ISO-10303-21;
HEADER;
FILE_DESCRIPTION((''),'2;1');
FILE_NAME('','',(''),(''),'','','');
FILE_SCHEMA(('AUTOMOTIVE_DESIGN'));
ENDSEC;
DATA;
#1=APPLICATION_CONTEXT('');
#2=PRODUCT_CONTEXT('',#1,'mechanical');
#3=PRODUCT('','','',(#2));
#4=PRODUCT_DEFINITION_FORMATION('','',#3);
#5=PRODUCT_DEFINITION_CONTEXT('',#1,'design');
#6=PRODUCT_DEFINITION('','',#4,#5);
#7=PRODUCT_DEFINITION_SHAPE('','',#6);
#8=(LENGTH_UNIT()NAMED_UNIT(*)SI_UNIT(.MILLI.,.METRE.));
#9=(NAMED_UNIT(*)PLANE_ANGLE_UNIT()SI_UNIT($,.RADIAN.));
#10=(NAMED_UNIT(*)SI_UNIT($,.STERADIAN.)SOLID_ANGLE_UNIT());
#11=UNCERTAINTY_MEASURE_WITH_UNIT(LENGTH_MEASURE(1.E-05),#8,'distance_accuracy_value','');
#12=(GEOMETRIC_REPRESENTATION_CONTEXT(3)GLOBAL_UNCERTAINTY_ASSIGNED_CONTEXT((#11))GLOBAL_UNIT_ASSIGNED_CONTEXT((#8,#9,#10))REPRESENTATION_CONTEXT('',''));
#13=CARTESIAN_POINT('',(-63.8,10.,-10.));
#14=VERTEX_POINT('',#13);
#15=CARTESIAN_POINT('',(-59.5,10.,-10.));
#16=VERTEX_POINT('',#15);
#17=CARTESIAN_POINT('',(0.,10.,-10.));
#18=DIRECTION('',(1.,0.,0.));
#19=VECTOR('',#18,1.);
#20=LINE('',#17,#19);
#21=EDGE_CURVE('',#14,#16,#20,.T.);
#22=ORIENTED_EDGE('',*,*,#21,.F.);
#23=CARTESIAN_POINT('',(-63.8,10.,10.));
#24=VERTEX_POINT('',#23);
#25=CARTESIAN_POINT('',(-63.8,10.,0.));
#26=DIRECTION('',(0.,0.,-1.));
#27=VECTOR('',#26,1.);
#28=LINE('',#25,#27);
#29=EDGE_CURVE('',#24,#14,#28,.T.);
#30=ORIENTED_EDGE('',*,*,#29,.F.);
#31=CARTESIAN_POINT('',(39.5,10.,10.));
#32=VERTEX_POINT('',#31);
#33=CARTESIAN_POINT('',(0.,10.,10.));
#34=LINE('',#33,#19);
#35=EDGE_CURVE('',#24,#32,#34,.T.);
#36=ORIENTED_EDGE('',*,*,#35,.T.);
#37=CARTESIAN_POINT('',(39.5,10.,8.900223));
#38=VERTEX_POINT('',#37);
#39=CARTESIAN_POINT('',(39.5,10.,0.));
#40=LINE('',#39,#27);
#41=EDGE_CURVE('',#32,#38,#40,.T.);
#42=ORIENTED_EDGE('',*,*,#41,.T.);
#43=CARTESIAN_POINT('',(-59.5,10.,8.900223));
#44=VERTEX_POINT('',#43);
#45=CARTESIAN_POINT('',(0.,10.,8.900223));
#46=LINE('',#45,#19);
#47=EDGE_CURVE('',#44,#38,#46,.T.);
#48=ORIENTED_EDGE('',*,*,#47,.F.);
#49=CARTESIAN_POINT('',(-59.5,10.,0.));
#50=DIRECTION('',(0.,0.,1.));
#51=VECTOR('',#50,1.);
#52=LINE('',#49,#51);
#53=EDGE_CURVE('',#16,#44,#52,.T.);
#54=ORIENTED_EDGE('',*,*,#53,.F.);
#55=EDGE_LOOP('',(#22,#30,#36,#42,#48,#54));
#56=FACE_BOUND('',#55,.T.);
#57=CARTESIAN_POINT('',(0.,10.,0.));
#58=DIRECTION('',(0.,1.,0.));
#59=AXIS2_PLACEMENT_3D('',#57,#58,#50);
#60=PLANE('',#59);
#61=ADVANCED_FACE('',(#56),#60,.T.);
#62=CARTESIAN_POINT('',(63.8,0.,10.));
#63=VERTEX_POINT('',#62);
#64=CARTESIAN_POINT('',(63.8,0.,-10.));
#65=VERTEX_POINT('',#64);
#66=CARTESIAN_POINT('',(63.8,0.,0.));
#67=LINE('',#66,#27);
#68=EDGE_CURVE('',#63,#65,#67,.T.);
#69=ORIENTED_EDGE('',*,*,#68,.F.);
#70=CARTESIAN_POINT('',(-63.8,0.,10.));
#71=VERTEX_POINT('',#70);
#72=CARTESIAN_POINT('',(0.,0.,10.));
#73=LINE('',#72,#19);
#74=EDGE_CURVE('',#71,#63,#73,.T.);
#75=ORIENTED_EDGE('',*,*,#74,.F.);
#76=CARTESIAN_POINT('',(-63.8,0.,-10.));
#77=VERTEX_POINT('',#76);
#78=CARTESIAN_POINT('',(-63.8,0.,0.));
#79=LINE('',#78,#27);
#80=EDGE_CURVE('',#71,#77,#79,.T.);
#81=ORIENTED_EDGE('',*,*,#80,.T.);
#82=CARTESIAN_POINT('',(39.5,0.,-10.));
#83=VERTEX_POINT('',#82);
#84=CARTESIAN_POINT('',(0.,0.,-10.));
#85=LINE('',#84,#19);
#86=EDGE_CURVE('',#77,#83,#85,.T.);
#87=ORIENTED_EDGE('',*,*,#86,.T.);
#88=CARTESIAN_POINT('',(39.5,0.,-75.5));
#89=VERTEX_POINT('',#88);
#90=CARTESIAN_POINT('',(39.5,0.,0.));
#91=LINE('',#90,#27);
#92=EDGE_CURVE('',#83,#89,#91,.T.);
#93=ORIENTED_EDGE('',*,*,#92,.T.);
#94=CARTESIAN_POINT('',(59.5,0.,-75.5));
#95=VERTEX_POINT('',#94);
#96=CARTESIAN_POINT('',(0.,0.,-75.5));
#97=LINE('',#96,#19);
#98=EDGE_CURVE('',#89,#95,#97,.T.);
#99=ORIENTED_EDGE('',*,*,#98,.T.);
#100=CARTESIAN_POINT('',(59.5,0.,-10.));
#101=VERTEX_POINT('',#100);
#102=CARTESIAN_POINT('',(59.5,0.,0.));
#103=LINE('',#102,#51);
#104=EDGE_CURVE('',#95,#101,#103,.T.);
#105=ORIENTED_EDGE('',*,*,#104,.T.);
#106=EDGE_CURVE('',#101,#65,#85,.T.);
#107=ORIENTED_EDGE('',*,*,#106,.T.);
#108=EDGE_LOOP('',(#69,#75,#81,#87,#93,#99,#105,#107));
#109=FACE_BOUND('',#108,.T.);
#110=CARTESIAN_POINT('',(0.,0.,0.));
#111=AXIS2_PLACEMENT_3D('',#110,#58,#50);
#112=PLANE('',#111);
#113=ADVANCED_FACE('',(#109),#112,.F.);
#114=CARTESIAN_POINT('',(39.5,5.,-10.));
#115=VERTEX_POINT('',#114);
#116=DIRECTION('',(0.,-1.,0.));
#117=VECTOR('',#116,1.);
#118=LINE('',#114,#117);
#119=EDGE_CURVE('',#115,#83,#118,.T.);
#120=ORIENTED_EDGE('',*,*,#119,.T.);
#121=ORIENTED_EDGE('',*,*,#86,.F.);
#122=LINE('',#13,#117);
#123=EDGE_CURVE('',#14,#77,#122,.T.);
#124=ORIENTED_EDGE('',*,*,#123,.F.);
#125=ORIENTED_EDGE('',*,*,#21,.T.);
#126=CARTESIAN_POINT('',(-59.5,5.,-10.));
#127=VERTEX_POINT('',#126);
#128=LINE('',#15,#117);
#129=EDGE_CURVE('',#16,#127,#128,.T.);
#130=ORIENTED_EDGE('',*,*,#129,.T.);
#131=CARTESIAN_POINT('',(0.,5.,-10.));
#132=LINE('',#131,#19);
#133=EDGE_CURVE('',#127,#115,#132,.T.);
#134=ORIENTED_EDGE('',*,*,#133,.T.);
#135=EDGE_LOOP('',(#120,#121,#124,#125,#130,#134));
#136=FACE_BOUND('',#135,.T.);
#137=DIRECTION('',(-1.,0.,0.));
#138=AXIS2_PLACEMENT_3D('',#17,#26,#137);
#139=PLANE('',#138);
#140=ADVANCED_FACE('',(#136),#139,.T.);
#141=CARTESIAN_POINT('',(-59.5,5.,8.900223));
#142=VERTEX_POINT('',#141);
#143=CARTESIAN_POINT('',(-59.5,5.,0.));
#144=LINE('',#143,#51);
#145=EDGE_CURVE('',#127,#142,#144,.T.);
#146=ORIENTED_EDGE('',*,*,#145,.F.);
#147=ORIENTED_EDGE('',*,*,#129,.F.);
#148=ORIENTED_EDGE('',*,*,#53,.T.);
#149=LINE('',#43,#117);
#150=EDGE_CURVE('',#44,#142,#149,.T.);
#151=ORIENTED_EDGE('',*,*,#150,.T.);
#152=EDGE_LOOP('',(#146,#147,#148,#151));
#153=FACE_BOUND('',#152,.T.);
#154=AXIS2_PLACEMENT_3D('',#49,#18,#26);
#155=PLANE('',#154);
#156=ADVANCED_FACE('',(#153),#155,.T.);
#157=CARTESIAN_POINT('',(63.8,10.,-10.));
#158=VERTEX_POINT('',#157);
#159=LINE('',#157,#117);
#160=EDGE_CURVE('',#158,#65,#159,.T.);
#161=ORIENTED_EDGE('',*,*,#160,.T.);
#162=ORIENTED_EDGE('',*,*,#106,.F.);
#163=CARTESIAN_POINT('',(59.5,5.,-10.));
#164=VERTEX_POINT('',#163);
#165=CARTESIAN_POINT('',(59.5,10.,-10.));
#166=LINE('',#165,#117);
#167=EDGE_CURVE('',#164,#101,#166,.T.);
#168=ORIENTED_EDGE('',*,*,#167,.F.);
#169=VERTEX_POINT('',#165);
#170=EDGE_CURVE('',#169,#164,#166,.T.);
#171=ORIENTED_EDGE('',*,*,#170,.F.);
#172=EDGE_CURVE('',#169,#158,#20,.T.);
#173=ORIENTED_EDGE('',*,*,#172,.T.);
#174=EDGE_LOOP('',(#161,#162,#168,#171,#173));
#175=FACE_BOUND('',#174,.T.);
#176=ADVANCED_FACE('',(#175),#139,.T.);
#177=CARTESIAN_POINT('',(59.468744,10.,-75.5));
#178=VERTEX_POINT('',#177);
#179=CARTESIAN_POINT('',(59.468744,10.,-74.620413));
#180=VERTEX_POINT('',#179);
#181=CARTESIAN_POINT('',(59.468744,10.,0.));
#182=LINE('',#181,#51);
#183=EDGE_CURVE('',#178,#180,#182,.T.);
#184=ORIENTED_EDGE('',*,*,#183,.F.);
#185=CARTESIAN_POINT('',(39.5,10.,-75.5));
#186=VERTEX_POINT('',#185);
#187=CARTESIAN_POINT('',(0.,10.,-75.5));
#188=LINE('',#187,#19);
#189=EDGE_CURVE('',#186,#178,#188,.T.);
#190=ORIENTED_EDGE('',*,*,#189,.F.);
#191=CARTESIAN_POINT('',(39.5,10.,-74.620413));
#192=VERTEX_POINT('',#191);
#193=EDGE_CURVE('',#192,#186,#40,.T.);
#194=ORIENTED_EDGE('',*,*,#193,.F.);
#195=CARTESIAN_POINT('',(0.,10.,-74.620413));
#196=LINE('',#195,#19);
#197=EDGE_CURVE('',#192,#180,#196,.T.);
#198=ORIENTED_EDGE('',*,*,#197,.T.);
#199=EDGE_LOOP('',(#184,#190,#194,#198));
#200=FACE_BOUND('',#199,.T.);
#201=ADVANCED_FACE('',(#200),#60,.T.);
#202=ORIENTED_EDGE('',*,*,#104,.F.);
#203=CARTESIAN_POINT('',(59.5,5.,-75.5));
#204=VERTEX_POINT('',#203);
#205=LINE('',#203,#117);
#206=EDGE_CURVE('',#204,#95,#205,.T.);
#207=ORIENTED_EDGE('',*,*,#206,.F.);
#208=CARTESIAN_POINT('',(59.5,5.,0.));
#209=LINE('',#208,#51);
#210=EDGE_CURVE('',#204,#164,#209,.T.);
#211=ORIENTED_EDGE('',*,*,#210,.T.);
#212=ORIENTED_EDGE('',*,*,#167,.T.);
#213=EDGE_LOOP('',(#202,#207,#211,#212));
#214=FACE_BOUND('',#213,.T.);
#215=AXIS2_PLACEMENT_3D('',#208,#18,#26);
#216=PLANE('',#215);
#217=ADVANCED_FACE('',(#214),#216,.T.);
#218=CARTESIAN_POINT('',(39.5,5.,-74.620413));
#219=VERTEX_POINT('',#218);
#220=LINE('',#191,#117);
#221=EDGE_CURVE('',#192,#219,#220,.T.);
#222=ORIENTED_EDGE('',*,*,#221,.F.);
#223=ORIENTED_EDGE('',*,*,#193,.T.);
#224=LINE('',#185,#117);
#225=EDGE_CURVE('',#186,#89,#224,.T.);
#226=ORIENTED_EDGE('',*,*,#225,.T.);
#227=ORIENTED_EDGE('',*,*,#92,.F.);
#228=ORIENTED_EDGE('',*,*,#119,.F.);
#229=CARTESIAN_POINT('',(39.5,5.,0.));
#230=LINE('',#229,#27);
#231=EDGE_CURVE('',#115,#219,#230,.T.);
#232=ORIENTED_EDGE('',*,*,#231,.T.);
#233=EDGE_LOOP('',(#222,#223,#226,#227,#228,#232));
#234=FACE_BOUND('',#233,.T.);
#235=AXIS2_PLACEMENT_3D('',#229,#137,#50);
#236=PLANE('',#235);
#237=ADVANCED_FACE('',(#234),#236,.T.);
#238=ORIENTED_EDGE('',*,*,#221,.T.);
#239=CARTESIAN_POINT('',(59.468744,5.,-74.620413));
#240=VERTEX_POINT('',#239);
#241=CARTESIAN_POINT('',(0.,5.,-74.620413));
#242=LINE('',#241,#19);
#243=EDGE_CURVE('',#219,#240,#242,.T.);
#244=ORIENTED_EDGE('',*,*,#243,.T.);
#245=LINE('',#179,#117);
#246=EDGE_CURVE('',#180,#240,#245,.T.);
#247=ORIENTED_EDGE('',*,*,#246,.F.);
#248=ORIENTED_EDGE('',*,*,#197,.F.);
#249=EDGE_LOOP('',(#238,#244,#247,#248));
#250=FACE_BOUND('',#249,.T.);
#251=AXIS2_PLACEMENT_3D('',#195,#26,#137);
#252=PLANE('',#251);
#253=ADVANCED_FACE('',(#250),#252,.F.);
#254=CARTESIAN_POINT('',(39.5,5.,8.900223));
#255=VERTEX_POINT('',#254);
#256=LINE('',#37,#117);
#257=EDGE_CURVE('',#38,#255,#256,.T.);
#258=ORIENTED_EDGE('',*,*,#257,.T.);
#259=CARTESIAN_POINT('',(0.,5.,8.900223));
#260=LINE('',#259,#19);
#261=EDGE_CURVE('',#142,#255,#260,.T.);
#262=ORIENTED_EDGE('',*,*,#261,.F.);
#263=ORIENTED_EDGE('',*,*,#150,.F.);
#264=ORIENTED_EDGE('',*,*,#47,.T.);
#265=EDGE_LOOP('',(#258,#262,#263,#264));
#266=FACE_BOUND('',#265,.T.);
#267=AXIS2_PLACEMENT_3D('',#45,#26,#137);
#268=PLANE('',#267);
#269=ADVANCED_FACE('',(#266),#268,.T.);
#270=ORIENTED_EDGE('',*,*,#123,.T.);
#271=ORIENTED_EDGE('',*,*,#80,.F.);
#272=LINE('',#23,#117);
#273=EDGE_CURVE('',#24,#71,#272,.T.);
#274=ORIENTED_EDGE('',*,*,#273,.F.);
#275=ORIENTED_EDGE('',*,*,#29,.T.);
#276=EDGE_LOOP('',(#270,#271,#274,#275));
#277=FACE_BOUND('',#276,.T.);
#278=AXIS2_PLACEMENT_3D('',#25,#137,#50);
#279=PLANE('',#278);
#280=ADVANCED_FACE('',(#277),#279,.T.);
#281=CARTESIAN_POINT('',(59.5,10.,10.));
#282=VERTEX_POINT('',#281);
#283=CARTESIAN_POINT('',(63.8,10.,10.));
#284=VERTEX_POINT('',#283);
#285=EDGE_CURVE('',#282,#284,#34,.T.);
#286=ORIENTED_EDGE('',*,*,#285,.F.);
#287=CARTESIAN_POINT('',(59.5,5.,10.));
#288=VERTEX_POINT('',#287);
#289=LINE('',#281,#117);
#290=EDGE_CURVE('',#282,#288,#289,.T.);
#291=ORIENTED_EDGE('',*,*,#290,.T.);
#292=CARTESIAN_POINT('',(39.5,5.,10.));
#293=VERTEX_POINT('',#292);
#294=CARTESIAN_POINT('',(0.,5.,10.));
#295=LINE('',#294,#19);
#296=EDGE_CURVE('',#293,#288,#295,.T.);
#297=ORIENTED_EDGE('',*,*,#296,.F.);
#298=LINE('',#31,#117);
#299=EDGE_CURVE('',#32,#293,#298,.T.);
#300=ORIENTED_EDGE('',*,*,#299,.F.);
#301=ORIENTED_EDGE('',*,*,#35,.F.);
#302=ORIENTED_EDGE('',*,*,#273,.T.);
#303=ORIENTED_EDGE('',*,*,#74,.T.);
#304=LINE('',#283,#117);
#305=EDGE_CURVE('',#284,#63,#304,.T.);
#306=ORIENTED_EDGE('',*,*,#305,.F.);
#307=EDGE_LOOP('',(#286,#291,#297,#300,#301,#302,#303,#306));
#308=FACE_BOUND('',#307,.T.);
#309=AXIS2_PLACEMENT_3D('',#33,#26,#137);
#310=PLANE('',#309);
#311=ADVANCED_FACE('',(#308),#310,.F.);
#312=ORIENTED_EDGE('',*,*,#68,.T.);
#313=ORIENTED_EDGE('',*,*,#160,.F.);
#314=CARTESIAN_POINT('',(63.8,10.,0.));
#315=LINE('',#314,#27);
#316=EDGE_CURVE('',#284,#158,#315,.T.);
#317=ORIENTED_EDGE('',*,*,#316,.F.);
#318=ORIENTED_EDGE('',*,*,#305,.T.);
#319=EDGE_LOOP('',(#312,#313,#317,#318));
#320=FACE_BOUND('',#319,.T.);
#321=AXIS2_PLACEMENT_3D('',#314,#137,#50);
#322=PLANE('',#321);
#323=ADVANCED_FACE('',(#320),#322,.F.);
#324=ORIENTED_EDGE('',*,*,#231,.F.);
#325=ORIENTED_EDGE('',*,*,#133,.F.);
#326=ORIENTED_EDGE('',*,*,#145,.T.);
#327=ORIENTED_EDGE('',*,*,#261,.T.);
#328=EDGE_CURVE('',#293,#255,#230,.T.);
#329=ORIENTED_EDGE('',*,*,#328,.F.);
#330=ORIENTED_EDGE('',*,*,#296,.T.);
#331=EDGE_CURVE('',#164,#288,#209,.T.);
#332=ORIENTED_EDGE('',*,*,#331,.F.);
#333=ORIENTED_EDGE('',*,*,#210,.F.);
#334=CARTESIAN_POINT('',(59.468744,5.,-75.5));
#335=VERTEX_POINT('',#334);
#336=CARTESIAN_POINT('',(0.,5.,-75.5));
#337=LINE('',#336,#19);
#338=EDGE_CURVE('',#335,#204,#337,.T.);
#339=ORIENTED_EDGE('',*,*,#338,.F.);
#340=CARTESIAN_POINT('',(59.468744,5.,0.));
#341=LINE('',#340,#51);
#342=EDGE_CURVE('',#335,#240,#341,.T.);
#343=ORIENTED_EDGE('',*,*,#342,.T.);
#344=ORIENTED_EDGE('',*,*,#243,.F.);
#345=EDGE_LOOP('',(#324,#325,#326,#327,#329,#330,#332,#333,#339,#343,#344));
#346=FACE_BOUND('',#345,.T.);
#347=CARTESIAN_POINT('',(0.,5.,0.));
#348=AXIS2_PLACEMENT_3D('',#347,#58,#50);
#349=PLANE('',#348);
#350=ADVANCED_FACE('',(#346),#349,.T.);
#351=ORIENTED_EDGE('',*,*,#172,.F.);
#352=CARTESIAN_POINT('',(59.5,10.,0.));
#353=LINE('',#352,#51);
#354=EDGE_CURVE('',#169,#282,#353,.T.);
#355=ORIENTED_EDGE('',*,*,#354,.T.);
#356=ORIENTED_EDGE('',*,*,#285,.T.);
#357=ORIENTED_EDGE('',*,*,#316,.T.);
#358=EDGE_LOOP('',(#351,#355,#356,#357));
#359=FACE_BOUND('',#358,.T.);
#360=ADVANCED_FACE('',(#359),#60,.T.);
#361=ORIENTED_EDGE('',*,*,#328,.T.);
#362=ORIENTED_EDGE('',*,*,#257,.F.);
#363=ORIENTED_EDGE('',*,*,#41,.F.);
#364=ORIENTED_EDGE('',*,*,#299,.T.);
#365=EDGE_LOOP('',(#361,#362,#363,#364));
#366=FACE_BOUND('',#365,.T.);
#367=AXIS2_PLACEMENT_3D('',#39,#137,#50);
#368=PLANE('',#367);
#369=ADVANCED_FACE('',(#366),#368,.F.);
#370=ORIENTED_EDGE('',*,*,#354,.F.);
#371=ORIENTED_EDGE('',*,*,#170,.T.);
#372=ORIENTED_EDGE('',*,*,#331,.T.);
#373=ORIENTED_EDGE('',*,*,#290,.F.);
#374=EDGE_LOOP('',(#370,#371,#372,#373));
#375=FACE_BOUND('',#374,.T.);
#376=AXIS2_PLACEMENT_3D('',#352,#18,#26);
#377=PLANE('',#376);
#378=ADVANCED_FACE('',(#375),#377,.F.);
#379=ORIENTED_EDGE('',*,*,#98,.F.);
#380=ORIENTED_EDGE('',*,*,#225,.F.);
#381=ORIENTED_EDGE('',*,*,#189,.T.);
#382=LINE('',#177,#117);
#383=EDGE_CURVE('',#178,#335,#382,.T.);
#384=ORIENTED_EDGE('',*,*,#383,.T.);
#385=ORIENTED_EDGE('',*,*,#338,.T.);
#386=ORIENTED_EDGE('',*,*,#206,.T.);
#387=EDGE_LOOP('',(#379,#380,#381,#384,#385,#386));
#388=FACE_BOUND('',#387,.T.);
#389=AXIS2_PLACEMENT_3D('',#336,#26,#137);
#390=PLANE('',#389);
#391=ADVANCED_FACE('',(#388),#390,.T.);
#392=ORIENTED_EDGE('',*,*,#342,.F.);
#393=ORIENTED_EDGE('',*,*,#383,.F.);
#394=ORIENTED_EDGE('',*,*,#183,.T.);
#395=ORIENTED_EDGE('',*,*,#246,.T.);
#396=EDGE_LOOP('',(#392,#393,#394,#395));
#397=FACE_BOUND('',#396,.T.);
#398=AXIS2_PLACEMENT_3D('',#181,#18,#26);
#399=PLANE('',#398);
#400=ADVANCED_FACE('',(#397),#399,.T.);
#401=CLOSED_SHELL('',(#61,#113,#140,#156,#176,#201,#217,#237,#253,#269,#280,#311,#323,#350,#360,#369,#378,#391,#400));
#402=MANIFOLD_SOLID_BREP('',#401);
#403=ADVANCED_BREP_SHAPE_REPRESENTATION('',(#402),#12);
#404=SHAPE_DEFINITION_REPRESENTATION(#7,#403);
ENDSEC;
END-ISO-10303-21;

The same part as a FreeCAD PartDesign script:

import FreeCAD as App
import Part
import Sketcher

V = App.Vector
Q = App.Units.Quantity

doc = App.newDocument("Part")
body = doc.addObject("PartDesign::Body", "Body")
body.AllowCompound = True

sketch1 = doc.addObject("Sketcher::SketchObject", "Sketch")
body.addObject(sketch1)
sketch1.AttachmentSupport = (doc.XZ_Plane, [""])
sketch1.MapMode = "FlatFace"
sketch1.addGeometry([
    Part.LineSegment(V(-63.8, -10, 0), V(-63.8, 10, 0)),
    Part.LineSegment(V(-63.8, 10, 0), V(39.5, 10, 0)),
    Part.LineSegment(V(39.5, 10, 0), V(39.5, 8.9, 0)),
    Part.LineSegment(V(39.5, 8.9, 0), V(-59.5, 8.9, 0)),
    Part.LineSegment(V(-59.5, 8.9, 0), V(-59.5, -10, 0)),
    Part.LineSegment(V(-59.5, -10, 0), V(-63.8, -10, 0)),
    Part.LineSegment(V(59.5, -10, 0), V(59.5, 10, 0)),
    Part.LineSegment(V(59.5, 10, 0), V(63.8, 10, 0)),
    Part.LineSegment(V(63.8, 10, 0), V(63.8, -10, 0)),
    Part.LineSegment(V(63.8, -10, 0), V(59.5, -10, 0)),
    Part.LineSegment(V(39.5, -75.5, 0), V(39.5, -74.6, 0)),
    Part.LineSegment(V(39.5, -74.6, 0), V(59.5, -74.6, 0)),
    Part.LineSegment(V(59.5, -74.6, 0), V(59.5, -75.5, 0)),
    Part.LineSegment(V(59.5, -75.5, 0), V(39.5, -75.5, 0)),
], False)
sketch1.addConstraint([
    Sketcher.Constraint("Coincident", 0, 2, 1, 1),
    Sketcher.Constraint("Coincident", 1, 2, 2, 1),
    Sketcher.Constraint("Coincident", 2, 2, 3, 1),
    Sketcher.Constraint("Coincident", 3, 2, 4, 1),
    Sketcher.Constraint("Coincident", 4, 2, 5, 1),
    Sketcher.Constraint("Coincident", 5, 2, 0, 1),
    Sketcher.Constraint("Coincident", 6, 2, 7, 1),
    Sketcher.Constraint("Coincident", 7, 2, 8, 1),
    Sketcher.Constraint("Coincident", 8, 2, 9, 1),
    Sketcher.Constraint("Coincident", 9, 2, 6, 1),
    Sketcher.Constraint("Coincident", 10, 2, 11, 1),
    Sketcher.Constraint("Coincident", 11, 2, 12, 1),
    Sketcher.Constraint("Coincident", 12, 2, 13, 1),
    Sketcher.Constraint("Coincident", 13, 2, 10, 1),
    Sketcher.Constraint("Vertical", 0),
    Sketcher.Constraint("Horizontal", 1),
    Sketcher.Constraint("Vertical", 2),
    Sketcher.Constraint("Horizontal", 3),
    Sketcher.Constraint("Vertical", 4),
    Sketcher.Constraint("Horizontal", 5),
    Sketcher.Constraint("Vertical", 6),
    Sketcher.Constraint("Horizontal", 7),
    Sketcher.Constraint("Vertical", 8),
    Sketcher.Constraint("Horizontal", 9),
    Sketcher.Constraint("Vertical", 10),
    Sketcher.Constraint("Horizontal", 11),
    Sketcher.Constraint("Vertical", 12),
    Sketcher.Constraint("Horizontal", 13),
    Sketcher.Constraint("Symmetric", 4, 2, 6, 2, -1, 1),
    Sketcher.Constraint("Symmetric", 0, 2, 8, 2, -1, 1),
    Sketcher.Constraint("Horizontal", 1, 2, 6, 2),
    Sketcher.Constraint("Vertical", 2, 2, 10, 2),
    Sketcher.Constraint("DistanceX", 3, 2, 3, 1, Q("99 mm")),
    Sketcher.Constraint("DistanceY", 0, 1, 0, 2, Q("20 mm")),
    Sketcher.Constraint("DistanceX", 1, 1, 1, 2, Q("103.3 mm")),
    Sketcher.Constraint("DistanceX", 1, 2, 6, 2, Q("20 mm")),
    Sketcher.Constraint("DistanceY", 12, 2, -1, 1, Q("75.5 mm")),
    Sketcher.Constraint("DistanceX", 11, 1, 11, 2, Q("19.968744 mm")),
    Sketcher.Constraint("DistanceY", 2, 2, 2, 1, Q("1.099777 mm")),
    Sketcher.Constraint("DistanceY", 10, 1, 10, 2, Q("0.879587 mm")),
])
pad1 = doc.addObject("PartDesign::Pad", "Pad")
body.addObject(pad1)
pad1.Profile = sketch1
pad1.Length = 10
pad1.Reversed = True

sketch2 = doc.addObject("Sketcher::SketchObject", "Sketch001")
body.addObject(sketch2)
sketch2.AttachmentSupport = (doc.XZ_Plane, [""])
sketch2.MapMode = "FlatFace"
sketch2.addGeometry([
    Part.LineSegment(V(-59.5, -10, 0), V(-59.5, 8.9, 0)),
    Part.LineSegment(V(-59.5, 8.9, 0), V(39.5, 8.9, 0)),
    Part.LineSegment(V(39.5, 8.9, 0), V(39.5, 10, 0)),
    Part.LineSegment(V(39.5, 10, 0), V(59.5, 10, 0)),
    Part.LineSegment(V(59.5, 10, 0), V(59.5, -75.5, 0)),
    Part.LineSegment(V(59.5, -75.5, 0), V(59.469, -75.5, 0)),
    Part.LineSegment(V(59.469, -75.5, 0), V(59.469, -74.62, 0)),
    Part.LineSegment(V(59.469, -74.62, 0), V(39.5, -74.62, 0)),
    Part.LineSegment(V(39.5, -74.62, 0), V(39.5, -10, 0)),
    Part.LineSegment(V(39.5, -10, 0), V(-59.5, -10, 0)),
], False)
sketch2.addConstraint([
    Sketcher.Constraint("Coincident", 0, 2, 1, 1),
    Sketcher.Constraint("Coincident", 1, 2, 2, 1),
    Sketcher.Constraint("Coincident", 2, 2, 3, 1),
    Sketcher.Constraint("Coincident", 3, 2, 4, 1),
    Sketcher.Constraint("Coincident", 4, 2, 5, 1),
    Sketcher.Constraint("Coincident", 5, 2, 6, 1),
    Sketcher.Constraint("Coincident", 6, 2, 7, 1),
    Sketcher.Constraint("Coincident", 7, 2, 8, 1),
    Sketcher.Constraint("Coincident", 8, 2, 9, 1),
    Sketcher.Constraint("Coincident", 9, 2, 0, 1),
    Sketcher.Constraint("Vertical", 0),
    Sketcher.Constraint("Horizontal", 1),
    Sketcher.Constraint("Vertical", 2),
    Sketcher.Constraint("Horizontal", 3),
    Sketcher.Constraint("Vertical", 4),
    Sketcher.Constraint("Horizontal", 5),
    Sketcher.Constraint("Vertical", 6),
    Sketcher.Constraint("Horizontal", 7),
    Sketcher.Constraint("Vertical", 8),
    Sketcher.Constraint("Horizontal", 9),
    Sketcher.Constraint("Symmetric", 3, 2, 9, 2, -1, 1),
    Sketcher.Constraint("Vertical", 2, 2, 7, 2),
    Sketcher.Constraint("DistanceX", 1, 1, 1, 2, Q("99 mm")),
    Sketcher.Constraint("DistanceX", 3, 1, 3, 2, Q("20 mm")),
    Sketcher.Constraint("DistanceY", 4, 2, 4, 1, Q("85.5 mm")),
    Sketcher.Constraint("DistanceY", -1, 1, 2, 2, Q("10 mm")),
    Sketcher.Constraint("DistanceX", 5, 2, 5, 1, Q("0.031256 mm")),
    Sketcher.Constraint("DistanceY", 0, 1, 0, 2, Q("18.900223 mm")),
    Sketcher.Constraint("DistanceY", 6, 1, 6, 2, Q("0.879587 mm")),
])
pad2 = doc.addObject("PartDesign::Pad", "Pad001")
body.addObject(pad2)
pad2.Profile = sketch2
pad2.Length = 5
pad2.Reversed = True

doc.recompute()
